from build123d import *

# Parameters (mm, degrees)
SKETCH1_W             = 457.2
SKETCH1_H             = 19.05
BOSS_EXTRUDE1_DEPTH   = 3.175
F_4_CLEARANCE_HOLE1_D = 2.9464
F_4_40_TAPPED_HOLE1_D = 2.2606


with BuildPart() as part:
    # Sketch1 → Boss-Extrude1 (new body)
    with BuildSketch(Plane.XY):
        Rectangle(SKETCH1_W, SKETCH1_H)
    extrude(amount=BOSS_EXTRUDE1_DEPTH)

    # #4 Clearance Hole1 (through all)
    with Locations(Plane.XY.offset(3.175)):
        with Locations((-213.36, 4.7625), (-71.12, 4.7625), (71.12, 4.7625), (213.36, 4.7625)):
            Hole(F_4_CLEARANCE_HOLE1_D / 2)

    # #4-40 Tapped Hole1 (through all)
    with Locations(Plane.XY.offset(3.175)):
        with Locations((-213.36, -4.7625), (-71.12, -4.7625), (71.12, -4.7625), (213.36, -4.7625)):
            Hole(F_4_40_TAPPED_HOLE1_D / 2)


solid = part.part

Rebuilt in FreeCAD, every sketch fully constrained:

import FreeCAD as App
import Part
import Sketcher
Q = App.Units.Quantity

doc = App.newDocument("Part")
body = doc.addObject("PartDesign::Body", "Body")

# Sketch on XY plane
sketch1 = body.newObject("Sketcher::SketchObject", "Sketch")
sketch1.AttachmentSupport = (doc.getObject("XY_Plane"), [""])
sketch1.MapMode = "FlatFace"
sketch1.addGeometry(Part.LineSegment(App.Vector(-229, 10, 0), App.Vector(-229, -10, 0)), False)
sketch1.addGeometry(Part.LineSegment(App.Vector(-229, -10, 0), App.Vector(229, -10, 0)), False)
sketch1.addGeometry(Part.LineSegment(App.Vector(229, -10, 0), App.Vector(229, 10, 0)), False)
sketch1.addGeometry(Part.LineSegment(App.Vector(229, 10, 0), App.Vector(-229, 10, 0)), False)
sketch1.addConstraint(Sketcher.Constraint("Coincident", 0, 2, 1, 1))
sketch1.addConstraint(Sketcher.Constraint("Coincident", 1, 2, 2, 1))
sketch1.addConstraint(Sketcher.Constraint("Coincident", 2, 2, 3, 1))
sketch1.addConstraint(Sketcher.Constraint("Coincident", 3, 2, 0, 1))
sketch1.addConstraint(Sketcher.Constraint("Vertical", 0))
sketch1.addConstraint(Sketcher.Constraint("Horizontal", 1))
sketch1.addConstraint(Sketcher.Constraint("Vertical", 2))
sketch1.addConstraint(Sketcher.Constraint("Horizontal", 3))
sketch1.addConstraint(Sketcher.Constraint("Symmetric", 0, 2, 2, 2, -1, 1))
sketch1.addConstraint(Sketcher.Constraint("DistanceX", 1, 1, 1, 2, Q("18 in")))
sketch1.addConstraint(Sketcher.Constraint("DistanceY", 0, 2, 0, 1, Q("0.75 in")))
pad1 = body.newObject("PartDesign::Pad", "Pad")
pad1.Profile = sketch1
pad1.Length = Q("0.125 in")

# Sketch on XY plane
sketch2 = body.newObject("Sketcher::SketchObject", "Sketch001")
sketch2.AttachmentSupport = (doc.getObject("XY_Plane"), [""])
sketch2.MapMode = "FlatFace"
sketch2.AttachmentOffset = App.Placement(App.Vector(0, 0, 0.125 * 25.4), App.Rotation())
sketch2.addGeometry(Part.Circle(App.Vector(-213.4, 4.8, 0), App.Vector(0, 0, 1), 1.5), False)
sketch2.addGeometry(Part.Circle(App.Vector(-71.1, 4.8, 0), App.Vector(0, 0, 1), 1.5), False)
sketch2.addGeometry(Part.Circle(App.Vector(71.1, 4.8, 0), App.Vector(0, 0, 1), 1.5), False)
sketch2.addGeometry(Part.Circle(App.Vector(213.4, 4.8, 0), App.Vector(0, 0, 1), 1.5), False)
sketch2.addConstraint(Sketcher.Constraint("Equal", 0, 1))
sketch2.addConstraint(Sketcher.Constraint("Equal", 1, 2))
sketch2.addConstraint(Sketcher.Constraint("Equal", 2, 3))
sketch2.addConstraint(Sketcher.Constraint("Symmetric", 1, 3, 2, 3, -2))
sketch2.addConstraint(Sketcher.Constraint("Symmetric", 0, 3, 3, 3, -2))
sketch2.addConstraint(Sketcher.Constraint("Horizontal", 0, 3, 1, 3))
sketch2.addConstraint(Sketcher.Constraint("Diameter", 0, Q("0.116 in")))
sketch2.addConstraint(Sketcher.Constraint("DistanceX", 0, 3, -1, 1, Q("8.4 in")))
sketch2.addConstraint(Sketcher.Constraint("DistanceX", 1, 3, -1, 1, Q("2.8 in")))
sketch2.addConstraint(Sketcher.Constraint("DistanceY", -1, 1, 0, 3, Q("0.1875 in")))
doc.recompute()
hole = body.newObject("PartDesign::Hole", "Hole")
hole.Profile = sketch2
hole.ThreadType = "None"
hole.Diameter = Q("0.116 in")
hole.DepthType = "ThroughAll"

# Sketch on XY plane
sketch3 = body.newObject("Sketcher::SketchObject", "Sketch002")
sketch3.AttachmentSupport = (doc.getObject("XY_Plane"), [""])
sketch3.MapMode = "FlatFace"
sketch3.AttachmentOffset = App.Placement(App.Vector(0, 0, 0.125 * 25.4), App.Rotation())
sketch3.addGeometry(Part.Circle(App.Vector(-213.4, -4.8, 0), App.Vector(0, 0, 1), 1.1), False)
sketch3.addGeometry(Part.Circle(App.Vector(-71.1, -4.8, 0), App.Vector(0, 0, 1), 1.1), False)
sketch3.addGeometry(Part.Circle(App.Vector(71.1, -4.8, 0), App.Vector(0, 0, 1), 1.1), False)
sketch3.addGeometry(Part.Circle(App.Vector(213.4, -4.8, 0), App.Vector(0, 0, 1), 1.1), False)
sketch3.addConstraint(Sketcher.Constraint("Equal", 0, 1))
sketch3.addConstraint(Sketcher.Constraint("Equal", 1, 2))
sketch3.addConstraint(Sketcher.Constraint("Equal", 2, 3))
sketch3.addConstraint(Sketcher.Constraint("Symmetric", 1, 3, 2, 3, -2))
sketch3.addConstraint(Sketcher.Constraint("Symmetric", 0, 3, 3, 3, -2))
sketch3.addConstraint(Sketcher.Constraint("Horizontal", 0, 3, 1, 3))
sketch3.addConstraint(Sketcher.Constraint("Diameter", 0, Q("0.089 in")))
sketch3.addConstraint(Sketcher.Constraint("DistanceX", 0, 3, -1, 1, Q("8.4 in")))
sketch3.addConstraint(Sketcher.Constraint("DistanceX", 1, 3, -1, 1, Q("2.8 in")))
sketch3.addConstraint(Sketcher.Constraint("DistanceY", 0, 3, -1, 1, Q("0.1875 in")))
doc.recompute()
hole2 = body.newObject("PartDesign::Hole", "Hole001")
hole2.Profile = sketch3
hole2.ThreadType = "None"
hole2.Diameter = Q("0.089 in")
hole2.DepthType = "ThroughAll"

doc.recompute()
